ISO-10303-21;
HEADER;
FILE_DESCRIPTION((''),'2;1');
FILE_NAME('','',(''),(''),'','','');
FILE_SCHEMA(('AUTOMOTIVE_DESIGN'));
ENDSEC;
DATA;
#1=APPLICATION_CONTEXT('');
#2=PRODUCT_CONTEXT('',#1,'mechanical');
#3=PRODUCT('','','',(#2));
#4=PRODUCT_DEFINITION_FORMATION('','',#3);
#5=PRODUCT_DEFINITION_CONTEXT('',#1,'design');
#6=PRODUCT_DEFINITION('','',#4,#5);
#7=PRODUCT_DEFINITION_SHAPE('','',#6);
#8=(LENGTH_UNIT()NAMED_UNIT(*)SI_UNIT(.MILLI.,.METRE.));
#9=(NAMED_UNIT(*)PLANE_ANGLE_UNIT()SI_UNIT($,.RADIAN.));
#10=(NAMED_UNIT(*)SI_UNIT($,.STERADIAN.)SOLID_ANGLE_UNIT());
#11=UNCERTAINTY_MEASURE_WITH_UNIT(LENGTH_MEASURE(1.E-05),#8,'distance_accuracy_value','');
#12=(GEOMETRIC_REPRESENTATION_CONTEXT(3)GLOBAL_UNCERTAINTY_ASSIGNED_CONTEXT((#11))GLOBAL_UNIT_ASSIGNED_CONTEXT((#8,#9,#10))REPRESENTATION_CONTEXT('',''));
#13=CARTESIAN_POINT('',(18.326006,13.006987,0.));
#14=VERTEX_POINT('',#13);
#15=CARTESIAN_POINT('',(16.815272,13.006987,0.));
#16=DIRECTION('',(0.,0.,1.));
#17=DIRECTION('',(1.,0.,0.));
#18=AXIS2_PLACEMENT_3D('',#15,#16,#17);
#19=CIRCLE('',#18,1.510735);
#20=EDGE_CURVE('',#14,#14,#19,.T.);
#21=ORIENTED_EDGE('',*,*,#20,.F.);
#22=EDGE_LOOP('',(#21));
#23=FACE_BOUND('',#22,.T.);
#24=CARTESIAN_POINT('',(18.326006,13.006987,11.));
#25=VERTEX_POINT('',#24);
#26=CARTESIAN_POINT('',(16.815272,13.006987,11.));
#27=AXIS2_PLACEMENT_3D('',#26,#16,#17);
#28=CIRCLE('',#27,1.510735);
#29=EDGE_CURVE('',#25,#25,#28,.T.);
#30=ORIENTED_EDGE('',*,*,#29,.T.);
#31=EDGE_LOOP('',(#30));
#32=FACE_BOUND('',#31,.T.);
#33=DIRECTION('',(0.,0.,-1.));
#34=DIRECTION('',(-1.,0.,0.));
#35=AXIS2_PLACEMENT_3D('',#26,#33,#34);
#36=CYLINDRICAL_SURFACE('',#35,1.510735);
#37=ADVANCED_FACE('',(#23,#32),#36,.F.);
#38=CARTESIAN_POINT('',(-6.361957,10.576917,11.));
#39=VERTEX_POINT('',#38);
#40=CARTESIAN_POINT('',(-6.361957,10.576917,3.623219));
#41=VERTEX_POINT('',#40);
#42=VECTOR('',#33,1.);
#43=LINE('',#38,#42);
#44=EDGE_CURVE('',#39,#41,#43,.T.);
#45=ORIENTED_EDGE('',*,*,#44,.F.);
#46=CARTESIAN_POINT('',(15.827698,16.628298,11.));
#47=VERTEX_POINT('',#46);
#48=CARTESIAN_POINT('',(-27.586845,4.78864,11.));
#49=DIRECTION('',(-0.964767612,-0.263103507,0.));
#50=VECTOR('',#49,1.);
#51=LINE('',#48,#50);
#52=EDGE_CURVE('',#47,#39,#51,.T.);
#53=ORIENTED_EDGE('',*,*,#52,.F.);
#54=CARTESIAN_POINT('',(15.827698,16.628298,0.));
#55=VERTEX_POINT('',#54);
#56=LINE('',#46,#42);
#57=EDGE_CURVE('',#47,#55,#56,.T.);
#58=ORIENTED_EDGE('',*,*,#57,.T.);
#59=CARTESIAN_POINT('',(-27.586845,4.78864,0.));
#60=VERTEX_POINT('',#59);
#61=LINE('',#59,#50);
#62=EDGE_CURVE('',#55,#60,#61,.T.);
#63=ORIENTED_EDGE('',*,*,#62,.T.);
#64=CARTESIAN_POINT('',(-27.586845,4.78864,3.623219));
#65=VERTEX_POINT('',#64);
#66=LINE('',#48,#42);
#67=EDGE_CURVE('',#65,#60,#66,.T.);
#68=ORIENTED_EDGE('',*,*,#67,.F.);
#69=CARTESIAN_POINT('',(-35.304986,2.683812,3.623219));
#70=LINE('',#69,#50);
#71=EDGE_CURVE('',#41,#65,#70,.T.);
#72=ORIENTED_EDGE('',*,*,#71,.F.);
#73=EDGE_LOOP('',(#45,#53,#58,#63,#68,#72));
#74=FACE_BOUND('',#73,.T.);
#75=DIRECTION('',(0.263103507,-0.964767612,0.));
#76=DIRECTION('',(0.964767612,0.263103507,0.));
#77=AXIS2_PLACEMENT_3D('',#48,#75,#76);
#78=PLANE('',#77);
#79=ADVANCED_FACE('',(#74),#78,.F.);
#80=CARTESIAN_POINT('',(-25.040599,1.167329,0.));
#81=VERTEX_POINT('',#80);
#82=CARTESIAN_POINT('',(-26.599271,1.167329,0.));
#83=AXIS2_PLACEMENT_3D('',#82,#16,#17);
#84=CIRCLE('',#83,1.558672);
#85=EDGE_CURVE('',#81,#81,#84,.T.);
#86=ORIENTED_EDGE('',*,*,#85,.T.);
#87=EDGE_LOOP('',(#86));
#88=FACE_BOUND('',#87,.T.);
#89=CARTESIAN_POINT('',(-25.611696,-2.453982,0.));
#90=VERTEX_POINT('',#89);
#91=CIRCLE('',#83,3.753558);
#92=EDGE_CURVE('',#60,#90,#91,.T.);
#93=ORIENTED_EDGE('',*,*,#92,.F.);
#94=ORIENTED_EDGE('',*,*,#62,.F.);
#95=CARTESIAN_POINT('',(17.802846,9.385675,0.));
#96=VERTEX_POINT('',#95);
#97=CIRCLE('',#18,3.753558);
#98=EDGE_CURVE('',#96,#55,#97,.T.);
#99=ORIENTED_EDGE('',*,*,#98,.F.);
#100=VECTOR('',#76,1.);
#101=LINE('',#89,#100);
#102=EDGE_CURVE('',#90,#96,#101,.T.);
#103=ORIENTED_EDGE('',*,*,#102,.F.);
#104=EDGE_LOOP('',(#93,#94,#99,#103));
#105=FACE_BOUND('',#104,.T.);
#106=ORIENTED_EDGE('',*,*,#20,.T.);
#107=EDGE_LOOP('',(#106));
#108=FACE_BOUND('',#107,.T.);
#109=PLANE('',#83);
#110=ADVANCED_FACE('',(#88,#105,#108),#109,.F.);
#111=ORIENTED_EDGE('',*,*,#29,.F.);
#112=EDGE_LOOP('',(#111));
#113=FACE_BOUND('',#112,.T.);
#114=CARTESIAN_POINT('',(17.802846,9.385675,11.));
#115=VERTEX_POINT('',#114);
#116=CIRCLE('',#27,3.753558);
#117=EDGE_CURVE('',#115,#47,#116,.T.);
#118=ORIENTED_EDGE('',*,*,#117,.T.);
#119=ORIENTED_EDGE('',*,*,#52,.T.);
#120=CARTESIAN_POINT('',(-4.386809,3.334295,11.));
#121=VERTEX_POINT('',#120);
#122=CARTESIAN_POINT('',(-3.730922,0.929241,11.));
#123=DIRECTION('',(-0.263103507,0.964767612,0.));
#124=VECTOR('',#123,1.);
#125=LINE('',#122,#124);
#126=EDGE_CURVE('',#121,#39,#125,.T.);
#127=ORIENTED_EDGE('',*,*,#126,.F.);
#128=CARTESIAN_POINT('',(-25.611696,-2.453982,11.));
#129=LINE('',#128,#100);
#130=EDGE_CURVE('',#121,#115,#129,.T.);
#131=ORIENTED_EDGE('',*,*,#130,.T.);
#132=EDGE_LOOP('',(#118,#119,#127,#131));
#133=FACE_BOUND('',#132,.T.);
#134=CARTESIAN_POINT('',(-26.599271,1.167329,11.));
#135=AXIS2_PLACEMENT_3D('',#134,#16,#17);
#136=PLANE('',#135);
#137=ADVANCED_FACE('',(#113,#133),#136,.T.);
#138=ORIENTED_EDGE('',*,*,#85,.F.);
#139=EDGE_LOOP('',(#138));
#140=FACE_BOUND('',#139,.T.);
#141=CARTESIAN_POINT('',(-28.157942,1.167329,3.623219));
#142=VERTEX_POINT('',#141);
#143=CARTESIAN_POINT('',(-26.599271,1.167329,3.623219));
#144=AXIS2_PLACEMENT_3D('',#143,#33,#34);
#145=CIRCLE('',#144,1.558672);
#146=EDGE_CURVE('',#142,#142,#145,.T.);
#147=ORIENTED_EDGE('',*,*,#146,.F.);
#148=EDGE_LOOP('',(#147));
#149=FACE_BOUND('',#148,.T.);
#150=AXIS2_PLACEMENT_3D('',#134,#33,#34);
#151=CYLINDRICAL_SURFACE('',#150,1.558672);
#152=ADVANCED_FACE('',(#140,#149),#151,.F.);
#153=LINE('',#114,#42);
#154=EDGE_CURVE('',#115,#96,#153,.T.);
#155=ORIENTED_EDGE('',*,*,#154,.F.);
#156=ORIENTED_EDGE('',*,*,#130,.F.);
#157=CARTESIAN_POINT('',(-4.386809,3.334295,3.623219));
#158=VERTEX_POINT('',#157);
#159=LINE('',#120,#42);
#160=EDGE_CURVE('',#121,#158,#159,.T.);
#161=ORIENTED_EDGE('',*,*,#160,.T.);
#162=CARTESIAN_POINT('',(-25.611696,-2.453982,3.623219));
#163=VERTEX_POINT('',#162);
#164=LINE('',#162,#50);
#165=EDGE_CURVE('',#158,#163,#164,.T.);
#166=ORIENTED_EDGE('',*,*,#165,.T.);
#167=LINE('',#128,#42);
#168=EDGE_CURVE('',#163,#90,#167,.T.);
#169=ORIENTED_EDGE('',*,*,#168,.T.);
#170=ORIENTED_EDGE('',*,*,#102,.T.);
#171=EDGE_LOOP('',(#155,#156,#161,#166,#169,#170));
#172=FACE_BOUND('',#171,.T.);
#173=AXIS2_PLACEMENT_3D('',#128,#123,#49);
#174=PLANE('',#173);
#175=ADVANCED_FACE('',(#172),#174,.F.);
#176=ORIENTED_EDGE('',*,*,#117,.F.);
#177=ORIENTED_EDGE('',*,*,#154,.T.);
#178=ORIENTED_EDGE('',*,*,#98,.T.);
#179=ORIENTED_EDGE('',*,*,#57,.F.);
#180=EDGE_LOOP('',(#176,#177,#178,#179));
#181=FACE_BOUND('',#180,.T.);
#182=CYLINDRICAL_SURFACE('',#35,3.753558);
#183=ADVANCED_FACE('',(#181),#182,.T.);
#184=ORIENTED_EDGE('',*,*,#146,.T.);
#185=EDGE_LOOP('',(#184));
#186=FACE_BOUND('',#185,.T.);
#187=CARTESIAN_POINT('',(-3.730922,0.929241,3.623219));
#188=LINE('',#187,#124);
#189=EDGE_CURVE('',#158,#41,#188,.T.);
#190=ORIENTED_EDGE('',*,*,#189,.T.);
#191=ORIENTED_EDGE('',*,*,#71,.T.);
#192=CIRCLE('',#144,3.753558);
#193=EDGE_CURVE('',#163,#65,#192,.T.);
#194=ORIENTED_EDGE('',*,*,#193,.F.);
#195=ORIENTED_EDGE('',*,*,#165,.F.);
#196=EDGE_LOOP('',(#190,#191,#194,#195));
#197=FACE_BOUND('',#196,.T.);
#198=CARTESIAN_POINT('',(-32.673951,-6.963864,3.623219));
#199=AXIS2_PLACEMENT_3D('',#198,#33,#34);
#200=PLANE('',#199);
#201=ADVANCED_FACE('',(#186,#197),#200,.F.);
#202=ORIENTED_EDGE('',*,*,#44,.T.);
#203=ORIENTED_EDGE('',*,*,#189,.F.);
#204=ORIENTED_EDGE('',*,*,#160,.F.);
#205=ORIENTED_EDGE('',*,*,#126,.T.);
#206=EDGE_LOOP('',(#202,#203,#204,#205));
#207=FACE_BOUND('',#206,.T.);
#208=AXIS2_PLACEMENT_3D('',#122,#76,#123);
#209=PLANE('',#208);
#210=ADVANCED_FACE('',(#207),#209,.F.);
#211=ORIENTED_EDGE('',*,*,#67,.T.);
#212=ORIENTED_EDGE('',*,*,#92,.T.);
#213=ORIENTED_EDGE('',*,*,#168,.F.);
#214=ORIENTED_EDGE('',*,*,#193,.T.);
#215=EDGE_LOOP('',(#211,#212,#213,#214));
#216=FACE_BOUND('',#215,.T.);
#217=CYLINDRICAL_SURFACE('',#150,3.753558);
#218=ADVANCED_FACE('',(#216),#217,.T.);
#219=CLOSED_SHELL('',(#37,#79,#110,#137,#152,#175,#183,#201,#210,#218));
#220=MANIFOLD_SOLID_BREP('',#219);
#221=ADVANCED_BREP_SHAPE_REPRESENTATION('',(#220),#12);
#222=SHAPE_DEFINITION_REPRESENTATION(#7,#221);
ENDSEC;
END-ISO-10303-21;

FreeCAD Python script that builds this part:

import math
import FreeCAD as App
import Part
import Sketcher
Q = App.Units.Quantity


def add_polygon(sketch, points):
    """Adds a closed chain of lines whose ends are joined by coincident constraints."""
    first, n = sketch.GeometryCount, len(points)
    for a, b in zip(points, points[1:] + points[:1]):
        sketch.addGeometry(Part.LineSegment(App.Vector(*a, 0), App.Vector(*b, 0)), False)
    for i in range(n):
        sketch.addConstraint(Sketcher.Constraint("Coincident", first + i, 2, first + (i + 1) % n, 1))

doc = App.newDocument("Part")
body = doc.addObject("PartDesign::Body", "Body")

# Sketch on XY plane
sketch1 = body.newObject("Sketcher::SketchObject", "Sketch")
sketch1.AttachmentSupport = (doc.getObject("XY_Plane"), [""])
sketch1.MapMode = "FlatFace"
sketch1.addGeometry(Part.LineSegment(App.Vector(15.827698, 16.628298, 0), App.Vector(-27.586845, 4.78864, 0)), False)
sketch1.addGeometry(Part.ArcOfCircle(Part.Circle(App.Vector(-26.599271, 1.167329, 0), App.Vector(0, 0, 1), 3.753558), math.radians(105.254293), math.radians(285.254293)), False)
sketch1.addGeometry(Part.LineSegment(App.Vector(-25.611696, -2.453982, 0), App.Vector(17.802846, 9.385675, 0)), False)
sketch1.addGeometry(Part.ArcOfCircle(Part.Circle(App.Vector(16.815272, 13.006987, 0), App.Vector(0, 0, 1), 3.753558), math.radians(-74.745707), math.radians(105.254293)), False)
sketch1.addGeometry(Part.Circle(App.Vector(-26.599271, 1.167329, 0), App.Vector(0, 0, 1), 1.558672), False)
sketch1.addGeometry(Part.Circle(App.Vector(16.815272, 13.006987, 0), App.Vector(0, 0, 1), 1.510735), False)
sketch1.addConstraint(Sketcher.Constraint("Tangent", 0, 2, 1, 1))
sketch1.addConstraint(Sketcher.Constraint("Tangent", 1, 2, 2, 1))
sketch1.addConstraint(Sketcher.Constraint("Tangent", 2, 2, 3, 1))
sketch1.addConstraint(Sketcher.Constraint("Tangent", 3, 2, 0, 1))
sketch1.addConstraint(Sketcher.Constraint("Coincident", 4, 3, 1, 3))
sketch1.addConstraint(Sketcher.Constraint("Coincident", 5, 3, 3, 3))
sketch1.addConstraint(Sketcher.Constraint("Equal", 1, 3))
sketch1.addConstraint(Sketcher.Constraint("Distance", 0, Q("45 mm")))
sketch1.addConstraint(Sketcher.Constraint("Diameter", 5, Q("3.021469 mm")))
sketch1.addConstraint(Sketcher.Constraint("Diameter", 4, Q("3.117343 mm")))
sketch1.addConstraint(Sketcher.Constraint("Radius", 1, Q("3.753558 mm")))
sketch1.addConstraint(Sketcher.Constraint("DistanceX", 1, 3, -1, 1, Q("26.599271 mm")))
sketch1.addConstraint(Sketcher.Constraint("DistanceY", -1, 1, 1, 3, Q("1.167329 mm")))
sketch1.addConstraint(Sketcher.Constraint("DistanceX", -1, 1, 3, 3, Q("16.815272 mm")))
pad1 = body.newObject("PartDesign::Pad", "Pad")
pad1.Profile = sketch1
pad1.Length = 11

# Sketch on an angled plane
sketch2 = body.newObject("Sketcher::SketchObject", "Sketch001")
sketch2.Placement = App.Placement(App.Vector(-3.125175, 11.459626, 0), App.Rotation(App.Vector(0.964767612, 0.263103507, 0), App.Vector(0, 0, -1.000000001), App.Vector(-0.263103507, 0.964767612, 0), "ZXY"))
add_polygon(sketch2, [(-33.354987, -3.623219), (-33.354987, -11), (-3.354987, -11), (-3.354987, -3.623219)])  # lines 0-3
sketch2.addConstraint(Sketcher.Constraint("Vertical", 0))
sketch2.addConstraint(Sketcher.Constraint("Horizontal", 1))
sketch2.addConstraint(Sketcher.Constraint("Vertical", 2))
sketch2.addConstraint(Sketcher.Constraint("Horizontal", 3))
sketch2.addConstraint(Sketcher.Constraint("DistanceX", 1, 1, 1, 2, Q("30 mm")))
sketch2.addConstraint(Sketcher.Constraint("DistanceY", 0, 2, -1, 1, Q("11 mm")))
sketch2.addConstraint(Sketcher.Constraint("DistanceY", 0, 2, 0, 1, Q("7.376781 mm")))
sketch2.addConstraint(Sketcher.Constraint("DistanceX", 0, 2, -1, 1, Q("33.354987 mm")))
pocket1 = body.newObject("PartDesign::Pocket", "Pocket")
pocket1.Profile = sketch2
pocket1.Length = 10

doc.recompute()
